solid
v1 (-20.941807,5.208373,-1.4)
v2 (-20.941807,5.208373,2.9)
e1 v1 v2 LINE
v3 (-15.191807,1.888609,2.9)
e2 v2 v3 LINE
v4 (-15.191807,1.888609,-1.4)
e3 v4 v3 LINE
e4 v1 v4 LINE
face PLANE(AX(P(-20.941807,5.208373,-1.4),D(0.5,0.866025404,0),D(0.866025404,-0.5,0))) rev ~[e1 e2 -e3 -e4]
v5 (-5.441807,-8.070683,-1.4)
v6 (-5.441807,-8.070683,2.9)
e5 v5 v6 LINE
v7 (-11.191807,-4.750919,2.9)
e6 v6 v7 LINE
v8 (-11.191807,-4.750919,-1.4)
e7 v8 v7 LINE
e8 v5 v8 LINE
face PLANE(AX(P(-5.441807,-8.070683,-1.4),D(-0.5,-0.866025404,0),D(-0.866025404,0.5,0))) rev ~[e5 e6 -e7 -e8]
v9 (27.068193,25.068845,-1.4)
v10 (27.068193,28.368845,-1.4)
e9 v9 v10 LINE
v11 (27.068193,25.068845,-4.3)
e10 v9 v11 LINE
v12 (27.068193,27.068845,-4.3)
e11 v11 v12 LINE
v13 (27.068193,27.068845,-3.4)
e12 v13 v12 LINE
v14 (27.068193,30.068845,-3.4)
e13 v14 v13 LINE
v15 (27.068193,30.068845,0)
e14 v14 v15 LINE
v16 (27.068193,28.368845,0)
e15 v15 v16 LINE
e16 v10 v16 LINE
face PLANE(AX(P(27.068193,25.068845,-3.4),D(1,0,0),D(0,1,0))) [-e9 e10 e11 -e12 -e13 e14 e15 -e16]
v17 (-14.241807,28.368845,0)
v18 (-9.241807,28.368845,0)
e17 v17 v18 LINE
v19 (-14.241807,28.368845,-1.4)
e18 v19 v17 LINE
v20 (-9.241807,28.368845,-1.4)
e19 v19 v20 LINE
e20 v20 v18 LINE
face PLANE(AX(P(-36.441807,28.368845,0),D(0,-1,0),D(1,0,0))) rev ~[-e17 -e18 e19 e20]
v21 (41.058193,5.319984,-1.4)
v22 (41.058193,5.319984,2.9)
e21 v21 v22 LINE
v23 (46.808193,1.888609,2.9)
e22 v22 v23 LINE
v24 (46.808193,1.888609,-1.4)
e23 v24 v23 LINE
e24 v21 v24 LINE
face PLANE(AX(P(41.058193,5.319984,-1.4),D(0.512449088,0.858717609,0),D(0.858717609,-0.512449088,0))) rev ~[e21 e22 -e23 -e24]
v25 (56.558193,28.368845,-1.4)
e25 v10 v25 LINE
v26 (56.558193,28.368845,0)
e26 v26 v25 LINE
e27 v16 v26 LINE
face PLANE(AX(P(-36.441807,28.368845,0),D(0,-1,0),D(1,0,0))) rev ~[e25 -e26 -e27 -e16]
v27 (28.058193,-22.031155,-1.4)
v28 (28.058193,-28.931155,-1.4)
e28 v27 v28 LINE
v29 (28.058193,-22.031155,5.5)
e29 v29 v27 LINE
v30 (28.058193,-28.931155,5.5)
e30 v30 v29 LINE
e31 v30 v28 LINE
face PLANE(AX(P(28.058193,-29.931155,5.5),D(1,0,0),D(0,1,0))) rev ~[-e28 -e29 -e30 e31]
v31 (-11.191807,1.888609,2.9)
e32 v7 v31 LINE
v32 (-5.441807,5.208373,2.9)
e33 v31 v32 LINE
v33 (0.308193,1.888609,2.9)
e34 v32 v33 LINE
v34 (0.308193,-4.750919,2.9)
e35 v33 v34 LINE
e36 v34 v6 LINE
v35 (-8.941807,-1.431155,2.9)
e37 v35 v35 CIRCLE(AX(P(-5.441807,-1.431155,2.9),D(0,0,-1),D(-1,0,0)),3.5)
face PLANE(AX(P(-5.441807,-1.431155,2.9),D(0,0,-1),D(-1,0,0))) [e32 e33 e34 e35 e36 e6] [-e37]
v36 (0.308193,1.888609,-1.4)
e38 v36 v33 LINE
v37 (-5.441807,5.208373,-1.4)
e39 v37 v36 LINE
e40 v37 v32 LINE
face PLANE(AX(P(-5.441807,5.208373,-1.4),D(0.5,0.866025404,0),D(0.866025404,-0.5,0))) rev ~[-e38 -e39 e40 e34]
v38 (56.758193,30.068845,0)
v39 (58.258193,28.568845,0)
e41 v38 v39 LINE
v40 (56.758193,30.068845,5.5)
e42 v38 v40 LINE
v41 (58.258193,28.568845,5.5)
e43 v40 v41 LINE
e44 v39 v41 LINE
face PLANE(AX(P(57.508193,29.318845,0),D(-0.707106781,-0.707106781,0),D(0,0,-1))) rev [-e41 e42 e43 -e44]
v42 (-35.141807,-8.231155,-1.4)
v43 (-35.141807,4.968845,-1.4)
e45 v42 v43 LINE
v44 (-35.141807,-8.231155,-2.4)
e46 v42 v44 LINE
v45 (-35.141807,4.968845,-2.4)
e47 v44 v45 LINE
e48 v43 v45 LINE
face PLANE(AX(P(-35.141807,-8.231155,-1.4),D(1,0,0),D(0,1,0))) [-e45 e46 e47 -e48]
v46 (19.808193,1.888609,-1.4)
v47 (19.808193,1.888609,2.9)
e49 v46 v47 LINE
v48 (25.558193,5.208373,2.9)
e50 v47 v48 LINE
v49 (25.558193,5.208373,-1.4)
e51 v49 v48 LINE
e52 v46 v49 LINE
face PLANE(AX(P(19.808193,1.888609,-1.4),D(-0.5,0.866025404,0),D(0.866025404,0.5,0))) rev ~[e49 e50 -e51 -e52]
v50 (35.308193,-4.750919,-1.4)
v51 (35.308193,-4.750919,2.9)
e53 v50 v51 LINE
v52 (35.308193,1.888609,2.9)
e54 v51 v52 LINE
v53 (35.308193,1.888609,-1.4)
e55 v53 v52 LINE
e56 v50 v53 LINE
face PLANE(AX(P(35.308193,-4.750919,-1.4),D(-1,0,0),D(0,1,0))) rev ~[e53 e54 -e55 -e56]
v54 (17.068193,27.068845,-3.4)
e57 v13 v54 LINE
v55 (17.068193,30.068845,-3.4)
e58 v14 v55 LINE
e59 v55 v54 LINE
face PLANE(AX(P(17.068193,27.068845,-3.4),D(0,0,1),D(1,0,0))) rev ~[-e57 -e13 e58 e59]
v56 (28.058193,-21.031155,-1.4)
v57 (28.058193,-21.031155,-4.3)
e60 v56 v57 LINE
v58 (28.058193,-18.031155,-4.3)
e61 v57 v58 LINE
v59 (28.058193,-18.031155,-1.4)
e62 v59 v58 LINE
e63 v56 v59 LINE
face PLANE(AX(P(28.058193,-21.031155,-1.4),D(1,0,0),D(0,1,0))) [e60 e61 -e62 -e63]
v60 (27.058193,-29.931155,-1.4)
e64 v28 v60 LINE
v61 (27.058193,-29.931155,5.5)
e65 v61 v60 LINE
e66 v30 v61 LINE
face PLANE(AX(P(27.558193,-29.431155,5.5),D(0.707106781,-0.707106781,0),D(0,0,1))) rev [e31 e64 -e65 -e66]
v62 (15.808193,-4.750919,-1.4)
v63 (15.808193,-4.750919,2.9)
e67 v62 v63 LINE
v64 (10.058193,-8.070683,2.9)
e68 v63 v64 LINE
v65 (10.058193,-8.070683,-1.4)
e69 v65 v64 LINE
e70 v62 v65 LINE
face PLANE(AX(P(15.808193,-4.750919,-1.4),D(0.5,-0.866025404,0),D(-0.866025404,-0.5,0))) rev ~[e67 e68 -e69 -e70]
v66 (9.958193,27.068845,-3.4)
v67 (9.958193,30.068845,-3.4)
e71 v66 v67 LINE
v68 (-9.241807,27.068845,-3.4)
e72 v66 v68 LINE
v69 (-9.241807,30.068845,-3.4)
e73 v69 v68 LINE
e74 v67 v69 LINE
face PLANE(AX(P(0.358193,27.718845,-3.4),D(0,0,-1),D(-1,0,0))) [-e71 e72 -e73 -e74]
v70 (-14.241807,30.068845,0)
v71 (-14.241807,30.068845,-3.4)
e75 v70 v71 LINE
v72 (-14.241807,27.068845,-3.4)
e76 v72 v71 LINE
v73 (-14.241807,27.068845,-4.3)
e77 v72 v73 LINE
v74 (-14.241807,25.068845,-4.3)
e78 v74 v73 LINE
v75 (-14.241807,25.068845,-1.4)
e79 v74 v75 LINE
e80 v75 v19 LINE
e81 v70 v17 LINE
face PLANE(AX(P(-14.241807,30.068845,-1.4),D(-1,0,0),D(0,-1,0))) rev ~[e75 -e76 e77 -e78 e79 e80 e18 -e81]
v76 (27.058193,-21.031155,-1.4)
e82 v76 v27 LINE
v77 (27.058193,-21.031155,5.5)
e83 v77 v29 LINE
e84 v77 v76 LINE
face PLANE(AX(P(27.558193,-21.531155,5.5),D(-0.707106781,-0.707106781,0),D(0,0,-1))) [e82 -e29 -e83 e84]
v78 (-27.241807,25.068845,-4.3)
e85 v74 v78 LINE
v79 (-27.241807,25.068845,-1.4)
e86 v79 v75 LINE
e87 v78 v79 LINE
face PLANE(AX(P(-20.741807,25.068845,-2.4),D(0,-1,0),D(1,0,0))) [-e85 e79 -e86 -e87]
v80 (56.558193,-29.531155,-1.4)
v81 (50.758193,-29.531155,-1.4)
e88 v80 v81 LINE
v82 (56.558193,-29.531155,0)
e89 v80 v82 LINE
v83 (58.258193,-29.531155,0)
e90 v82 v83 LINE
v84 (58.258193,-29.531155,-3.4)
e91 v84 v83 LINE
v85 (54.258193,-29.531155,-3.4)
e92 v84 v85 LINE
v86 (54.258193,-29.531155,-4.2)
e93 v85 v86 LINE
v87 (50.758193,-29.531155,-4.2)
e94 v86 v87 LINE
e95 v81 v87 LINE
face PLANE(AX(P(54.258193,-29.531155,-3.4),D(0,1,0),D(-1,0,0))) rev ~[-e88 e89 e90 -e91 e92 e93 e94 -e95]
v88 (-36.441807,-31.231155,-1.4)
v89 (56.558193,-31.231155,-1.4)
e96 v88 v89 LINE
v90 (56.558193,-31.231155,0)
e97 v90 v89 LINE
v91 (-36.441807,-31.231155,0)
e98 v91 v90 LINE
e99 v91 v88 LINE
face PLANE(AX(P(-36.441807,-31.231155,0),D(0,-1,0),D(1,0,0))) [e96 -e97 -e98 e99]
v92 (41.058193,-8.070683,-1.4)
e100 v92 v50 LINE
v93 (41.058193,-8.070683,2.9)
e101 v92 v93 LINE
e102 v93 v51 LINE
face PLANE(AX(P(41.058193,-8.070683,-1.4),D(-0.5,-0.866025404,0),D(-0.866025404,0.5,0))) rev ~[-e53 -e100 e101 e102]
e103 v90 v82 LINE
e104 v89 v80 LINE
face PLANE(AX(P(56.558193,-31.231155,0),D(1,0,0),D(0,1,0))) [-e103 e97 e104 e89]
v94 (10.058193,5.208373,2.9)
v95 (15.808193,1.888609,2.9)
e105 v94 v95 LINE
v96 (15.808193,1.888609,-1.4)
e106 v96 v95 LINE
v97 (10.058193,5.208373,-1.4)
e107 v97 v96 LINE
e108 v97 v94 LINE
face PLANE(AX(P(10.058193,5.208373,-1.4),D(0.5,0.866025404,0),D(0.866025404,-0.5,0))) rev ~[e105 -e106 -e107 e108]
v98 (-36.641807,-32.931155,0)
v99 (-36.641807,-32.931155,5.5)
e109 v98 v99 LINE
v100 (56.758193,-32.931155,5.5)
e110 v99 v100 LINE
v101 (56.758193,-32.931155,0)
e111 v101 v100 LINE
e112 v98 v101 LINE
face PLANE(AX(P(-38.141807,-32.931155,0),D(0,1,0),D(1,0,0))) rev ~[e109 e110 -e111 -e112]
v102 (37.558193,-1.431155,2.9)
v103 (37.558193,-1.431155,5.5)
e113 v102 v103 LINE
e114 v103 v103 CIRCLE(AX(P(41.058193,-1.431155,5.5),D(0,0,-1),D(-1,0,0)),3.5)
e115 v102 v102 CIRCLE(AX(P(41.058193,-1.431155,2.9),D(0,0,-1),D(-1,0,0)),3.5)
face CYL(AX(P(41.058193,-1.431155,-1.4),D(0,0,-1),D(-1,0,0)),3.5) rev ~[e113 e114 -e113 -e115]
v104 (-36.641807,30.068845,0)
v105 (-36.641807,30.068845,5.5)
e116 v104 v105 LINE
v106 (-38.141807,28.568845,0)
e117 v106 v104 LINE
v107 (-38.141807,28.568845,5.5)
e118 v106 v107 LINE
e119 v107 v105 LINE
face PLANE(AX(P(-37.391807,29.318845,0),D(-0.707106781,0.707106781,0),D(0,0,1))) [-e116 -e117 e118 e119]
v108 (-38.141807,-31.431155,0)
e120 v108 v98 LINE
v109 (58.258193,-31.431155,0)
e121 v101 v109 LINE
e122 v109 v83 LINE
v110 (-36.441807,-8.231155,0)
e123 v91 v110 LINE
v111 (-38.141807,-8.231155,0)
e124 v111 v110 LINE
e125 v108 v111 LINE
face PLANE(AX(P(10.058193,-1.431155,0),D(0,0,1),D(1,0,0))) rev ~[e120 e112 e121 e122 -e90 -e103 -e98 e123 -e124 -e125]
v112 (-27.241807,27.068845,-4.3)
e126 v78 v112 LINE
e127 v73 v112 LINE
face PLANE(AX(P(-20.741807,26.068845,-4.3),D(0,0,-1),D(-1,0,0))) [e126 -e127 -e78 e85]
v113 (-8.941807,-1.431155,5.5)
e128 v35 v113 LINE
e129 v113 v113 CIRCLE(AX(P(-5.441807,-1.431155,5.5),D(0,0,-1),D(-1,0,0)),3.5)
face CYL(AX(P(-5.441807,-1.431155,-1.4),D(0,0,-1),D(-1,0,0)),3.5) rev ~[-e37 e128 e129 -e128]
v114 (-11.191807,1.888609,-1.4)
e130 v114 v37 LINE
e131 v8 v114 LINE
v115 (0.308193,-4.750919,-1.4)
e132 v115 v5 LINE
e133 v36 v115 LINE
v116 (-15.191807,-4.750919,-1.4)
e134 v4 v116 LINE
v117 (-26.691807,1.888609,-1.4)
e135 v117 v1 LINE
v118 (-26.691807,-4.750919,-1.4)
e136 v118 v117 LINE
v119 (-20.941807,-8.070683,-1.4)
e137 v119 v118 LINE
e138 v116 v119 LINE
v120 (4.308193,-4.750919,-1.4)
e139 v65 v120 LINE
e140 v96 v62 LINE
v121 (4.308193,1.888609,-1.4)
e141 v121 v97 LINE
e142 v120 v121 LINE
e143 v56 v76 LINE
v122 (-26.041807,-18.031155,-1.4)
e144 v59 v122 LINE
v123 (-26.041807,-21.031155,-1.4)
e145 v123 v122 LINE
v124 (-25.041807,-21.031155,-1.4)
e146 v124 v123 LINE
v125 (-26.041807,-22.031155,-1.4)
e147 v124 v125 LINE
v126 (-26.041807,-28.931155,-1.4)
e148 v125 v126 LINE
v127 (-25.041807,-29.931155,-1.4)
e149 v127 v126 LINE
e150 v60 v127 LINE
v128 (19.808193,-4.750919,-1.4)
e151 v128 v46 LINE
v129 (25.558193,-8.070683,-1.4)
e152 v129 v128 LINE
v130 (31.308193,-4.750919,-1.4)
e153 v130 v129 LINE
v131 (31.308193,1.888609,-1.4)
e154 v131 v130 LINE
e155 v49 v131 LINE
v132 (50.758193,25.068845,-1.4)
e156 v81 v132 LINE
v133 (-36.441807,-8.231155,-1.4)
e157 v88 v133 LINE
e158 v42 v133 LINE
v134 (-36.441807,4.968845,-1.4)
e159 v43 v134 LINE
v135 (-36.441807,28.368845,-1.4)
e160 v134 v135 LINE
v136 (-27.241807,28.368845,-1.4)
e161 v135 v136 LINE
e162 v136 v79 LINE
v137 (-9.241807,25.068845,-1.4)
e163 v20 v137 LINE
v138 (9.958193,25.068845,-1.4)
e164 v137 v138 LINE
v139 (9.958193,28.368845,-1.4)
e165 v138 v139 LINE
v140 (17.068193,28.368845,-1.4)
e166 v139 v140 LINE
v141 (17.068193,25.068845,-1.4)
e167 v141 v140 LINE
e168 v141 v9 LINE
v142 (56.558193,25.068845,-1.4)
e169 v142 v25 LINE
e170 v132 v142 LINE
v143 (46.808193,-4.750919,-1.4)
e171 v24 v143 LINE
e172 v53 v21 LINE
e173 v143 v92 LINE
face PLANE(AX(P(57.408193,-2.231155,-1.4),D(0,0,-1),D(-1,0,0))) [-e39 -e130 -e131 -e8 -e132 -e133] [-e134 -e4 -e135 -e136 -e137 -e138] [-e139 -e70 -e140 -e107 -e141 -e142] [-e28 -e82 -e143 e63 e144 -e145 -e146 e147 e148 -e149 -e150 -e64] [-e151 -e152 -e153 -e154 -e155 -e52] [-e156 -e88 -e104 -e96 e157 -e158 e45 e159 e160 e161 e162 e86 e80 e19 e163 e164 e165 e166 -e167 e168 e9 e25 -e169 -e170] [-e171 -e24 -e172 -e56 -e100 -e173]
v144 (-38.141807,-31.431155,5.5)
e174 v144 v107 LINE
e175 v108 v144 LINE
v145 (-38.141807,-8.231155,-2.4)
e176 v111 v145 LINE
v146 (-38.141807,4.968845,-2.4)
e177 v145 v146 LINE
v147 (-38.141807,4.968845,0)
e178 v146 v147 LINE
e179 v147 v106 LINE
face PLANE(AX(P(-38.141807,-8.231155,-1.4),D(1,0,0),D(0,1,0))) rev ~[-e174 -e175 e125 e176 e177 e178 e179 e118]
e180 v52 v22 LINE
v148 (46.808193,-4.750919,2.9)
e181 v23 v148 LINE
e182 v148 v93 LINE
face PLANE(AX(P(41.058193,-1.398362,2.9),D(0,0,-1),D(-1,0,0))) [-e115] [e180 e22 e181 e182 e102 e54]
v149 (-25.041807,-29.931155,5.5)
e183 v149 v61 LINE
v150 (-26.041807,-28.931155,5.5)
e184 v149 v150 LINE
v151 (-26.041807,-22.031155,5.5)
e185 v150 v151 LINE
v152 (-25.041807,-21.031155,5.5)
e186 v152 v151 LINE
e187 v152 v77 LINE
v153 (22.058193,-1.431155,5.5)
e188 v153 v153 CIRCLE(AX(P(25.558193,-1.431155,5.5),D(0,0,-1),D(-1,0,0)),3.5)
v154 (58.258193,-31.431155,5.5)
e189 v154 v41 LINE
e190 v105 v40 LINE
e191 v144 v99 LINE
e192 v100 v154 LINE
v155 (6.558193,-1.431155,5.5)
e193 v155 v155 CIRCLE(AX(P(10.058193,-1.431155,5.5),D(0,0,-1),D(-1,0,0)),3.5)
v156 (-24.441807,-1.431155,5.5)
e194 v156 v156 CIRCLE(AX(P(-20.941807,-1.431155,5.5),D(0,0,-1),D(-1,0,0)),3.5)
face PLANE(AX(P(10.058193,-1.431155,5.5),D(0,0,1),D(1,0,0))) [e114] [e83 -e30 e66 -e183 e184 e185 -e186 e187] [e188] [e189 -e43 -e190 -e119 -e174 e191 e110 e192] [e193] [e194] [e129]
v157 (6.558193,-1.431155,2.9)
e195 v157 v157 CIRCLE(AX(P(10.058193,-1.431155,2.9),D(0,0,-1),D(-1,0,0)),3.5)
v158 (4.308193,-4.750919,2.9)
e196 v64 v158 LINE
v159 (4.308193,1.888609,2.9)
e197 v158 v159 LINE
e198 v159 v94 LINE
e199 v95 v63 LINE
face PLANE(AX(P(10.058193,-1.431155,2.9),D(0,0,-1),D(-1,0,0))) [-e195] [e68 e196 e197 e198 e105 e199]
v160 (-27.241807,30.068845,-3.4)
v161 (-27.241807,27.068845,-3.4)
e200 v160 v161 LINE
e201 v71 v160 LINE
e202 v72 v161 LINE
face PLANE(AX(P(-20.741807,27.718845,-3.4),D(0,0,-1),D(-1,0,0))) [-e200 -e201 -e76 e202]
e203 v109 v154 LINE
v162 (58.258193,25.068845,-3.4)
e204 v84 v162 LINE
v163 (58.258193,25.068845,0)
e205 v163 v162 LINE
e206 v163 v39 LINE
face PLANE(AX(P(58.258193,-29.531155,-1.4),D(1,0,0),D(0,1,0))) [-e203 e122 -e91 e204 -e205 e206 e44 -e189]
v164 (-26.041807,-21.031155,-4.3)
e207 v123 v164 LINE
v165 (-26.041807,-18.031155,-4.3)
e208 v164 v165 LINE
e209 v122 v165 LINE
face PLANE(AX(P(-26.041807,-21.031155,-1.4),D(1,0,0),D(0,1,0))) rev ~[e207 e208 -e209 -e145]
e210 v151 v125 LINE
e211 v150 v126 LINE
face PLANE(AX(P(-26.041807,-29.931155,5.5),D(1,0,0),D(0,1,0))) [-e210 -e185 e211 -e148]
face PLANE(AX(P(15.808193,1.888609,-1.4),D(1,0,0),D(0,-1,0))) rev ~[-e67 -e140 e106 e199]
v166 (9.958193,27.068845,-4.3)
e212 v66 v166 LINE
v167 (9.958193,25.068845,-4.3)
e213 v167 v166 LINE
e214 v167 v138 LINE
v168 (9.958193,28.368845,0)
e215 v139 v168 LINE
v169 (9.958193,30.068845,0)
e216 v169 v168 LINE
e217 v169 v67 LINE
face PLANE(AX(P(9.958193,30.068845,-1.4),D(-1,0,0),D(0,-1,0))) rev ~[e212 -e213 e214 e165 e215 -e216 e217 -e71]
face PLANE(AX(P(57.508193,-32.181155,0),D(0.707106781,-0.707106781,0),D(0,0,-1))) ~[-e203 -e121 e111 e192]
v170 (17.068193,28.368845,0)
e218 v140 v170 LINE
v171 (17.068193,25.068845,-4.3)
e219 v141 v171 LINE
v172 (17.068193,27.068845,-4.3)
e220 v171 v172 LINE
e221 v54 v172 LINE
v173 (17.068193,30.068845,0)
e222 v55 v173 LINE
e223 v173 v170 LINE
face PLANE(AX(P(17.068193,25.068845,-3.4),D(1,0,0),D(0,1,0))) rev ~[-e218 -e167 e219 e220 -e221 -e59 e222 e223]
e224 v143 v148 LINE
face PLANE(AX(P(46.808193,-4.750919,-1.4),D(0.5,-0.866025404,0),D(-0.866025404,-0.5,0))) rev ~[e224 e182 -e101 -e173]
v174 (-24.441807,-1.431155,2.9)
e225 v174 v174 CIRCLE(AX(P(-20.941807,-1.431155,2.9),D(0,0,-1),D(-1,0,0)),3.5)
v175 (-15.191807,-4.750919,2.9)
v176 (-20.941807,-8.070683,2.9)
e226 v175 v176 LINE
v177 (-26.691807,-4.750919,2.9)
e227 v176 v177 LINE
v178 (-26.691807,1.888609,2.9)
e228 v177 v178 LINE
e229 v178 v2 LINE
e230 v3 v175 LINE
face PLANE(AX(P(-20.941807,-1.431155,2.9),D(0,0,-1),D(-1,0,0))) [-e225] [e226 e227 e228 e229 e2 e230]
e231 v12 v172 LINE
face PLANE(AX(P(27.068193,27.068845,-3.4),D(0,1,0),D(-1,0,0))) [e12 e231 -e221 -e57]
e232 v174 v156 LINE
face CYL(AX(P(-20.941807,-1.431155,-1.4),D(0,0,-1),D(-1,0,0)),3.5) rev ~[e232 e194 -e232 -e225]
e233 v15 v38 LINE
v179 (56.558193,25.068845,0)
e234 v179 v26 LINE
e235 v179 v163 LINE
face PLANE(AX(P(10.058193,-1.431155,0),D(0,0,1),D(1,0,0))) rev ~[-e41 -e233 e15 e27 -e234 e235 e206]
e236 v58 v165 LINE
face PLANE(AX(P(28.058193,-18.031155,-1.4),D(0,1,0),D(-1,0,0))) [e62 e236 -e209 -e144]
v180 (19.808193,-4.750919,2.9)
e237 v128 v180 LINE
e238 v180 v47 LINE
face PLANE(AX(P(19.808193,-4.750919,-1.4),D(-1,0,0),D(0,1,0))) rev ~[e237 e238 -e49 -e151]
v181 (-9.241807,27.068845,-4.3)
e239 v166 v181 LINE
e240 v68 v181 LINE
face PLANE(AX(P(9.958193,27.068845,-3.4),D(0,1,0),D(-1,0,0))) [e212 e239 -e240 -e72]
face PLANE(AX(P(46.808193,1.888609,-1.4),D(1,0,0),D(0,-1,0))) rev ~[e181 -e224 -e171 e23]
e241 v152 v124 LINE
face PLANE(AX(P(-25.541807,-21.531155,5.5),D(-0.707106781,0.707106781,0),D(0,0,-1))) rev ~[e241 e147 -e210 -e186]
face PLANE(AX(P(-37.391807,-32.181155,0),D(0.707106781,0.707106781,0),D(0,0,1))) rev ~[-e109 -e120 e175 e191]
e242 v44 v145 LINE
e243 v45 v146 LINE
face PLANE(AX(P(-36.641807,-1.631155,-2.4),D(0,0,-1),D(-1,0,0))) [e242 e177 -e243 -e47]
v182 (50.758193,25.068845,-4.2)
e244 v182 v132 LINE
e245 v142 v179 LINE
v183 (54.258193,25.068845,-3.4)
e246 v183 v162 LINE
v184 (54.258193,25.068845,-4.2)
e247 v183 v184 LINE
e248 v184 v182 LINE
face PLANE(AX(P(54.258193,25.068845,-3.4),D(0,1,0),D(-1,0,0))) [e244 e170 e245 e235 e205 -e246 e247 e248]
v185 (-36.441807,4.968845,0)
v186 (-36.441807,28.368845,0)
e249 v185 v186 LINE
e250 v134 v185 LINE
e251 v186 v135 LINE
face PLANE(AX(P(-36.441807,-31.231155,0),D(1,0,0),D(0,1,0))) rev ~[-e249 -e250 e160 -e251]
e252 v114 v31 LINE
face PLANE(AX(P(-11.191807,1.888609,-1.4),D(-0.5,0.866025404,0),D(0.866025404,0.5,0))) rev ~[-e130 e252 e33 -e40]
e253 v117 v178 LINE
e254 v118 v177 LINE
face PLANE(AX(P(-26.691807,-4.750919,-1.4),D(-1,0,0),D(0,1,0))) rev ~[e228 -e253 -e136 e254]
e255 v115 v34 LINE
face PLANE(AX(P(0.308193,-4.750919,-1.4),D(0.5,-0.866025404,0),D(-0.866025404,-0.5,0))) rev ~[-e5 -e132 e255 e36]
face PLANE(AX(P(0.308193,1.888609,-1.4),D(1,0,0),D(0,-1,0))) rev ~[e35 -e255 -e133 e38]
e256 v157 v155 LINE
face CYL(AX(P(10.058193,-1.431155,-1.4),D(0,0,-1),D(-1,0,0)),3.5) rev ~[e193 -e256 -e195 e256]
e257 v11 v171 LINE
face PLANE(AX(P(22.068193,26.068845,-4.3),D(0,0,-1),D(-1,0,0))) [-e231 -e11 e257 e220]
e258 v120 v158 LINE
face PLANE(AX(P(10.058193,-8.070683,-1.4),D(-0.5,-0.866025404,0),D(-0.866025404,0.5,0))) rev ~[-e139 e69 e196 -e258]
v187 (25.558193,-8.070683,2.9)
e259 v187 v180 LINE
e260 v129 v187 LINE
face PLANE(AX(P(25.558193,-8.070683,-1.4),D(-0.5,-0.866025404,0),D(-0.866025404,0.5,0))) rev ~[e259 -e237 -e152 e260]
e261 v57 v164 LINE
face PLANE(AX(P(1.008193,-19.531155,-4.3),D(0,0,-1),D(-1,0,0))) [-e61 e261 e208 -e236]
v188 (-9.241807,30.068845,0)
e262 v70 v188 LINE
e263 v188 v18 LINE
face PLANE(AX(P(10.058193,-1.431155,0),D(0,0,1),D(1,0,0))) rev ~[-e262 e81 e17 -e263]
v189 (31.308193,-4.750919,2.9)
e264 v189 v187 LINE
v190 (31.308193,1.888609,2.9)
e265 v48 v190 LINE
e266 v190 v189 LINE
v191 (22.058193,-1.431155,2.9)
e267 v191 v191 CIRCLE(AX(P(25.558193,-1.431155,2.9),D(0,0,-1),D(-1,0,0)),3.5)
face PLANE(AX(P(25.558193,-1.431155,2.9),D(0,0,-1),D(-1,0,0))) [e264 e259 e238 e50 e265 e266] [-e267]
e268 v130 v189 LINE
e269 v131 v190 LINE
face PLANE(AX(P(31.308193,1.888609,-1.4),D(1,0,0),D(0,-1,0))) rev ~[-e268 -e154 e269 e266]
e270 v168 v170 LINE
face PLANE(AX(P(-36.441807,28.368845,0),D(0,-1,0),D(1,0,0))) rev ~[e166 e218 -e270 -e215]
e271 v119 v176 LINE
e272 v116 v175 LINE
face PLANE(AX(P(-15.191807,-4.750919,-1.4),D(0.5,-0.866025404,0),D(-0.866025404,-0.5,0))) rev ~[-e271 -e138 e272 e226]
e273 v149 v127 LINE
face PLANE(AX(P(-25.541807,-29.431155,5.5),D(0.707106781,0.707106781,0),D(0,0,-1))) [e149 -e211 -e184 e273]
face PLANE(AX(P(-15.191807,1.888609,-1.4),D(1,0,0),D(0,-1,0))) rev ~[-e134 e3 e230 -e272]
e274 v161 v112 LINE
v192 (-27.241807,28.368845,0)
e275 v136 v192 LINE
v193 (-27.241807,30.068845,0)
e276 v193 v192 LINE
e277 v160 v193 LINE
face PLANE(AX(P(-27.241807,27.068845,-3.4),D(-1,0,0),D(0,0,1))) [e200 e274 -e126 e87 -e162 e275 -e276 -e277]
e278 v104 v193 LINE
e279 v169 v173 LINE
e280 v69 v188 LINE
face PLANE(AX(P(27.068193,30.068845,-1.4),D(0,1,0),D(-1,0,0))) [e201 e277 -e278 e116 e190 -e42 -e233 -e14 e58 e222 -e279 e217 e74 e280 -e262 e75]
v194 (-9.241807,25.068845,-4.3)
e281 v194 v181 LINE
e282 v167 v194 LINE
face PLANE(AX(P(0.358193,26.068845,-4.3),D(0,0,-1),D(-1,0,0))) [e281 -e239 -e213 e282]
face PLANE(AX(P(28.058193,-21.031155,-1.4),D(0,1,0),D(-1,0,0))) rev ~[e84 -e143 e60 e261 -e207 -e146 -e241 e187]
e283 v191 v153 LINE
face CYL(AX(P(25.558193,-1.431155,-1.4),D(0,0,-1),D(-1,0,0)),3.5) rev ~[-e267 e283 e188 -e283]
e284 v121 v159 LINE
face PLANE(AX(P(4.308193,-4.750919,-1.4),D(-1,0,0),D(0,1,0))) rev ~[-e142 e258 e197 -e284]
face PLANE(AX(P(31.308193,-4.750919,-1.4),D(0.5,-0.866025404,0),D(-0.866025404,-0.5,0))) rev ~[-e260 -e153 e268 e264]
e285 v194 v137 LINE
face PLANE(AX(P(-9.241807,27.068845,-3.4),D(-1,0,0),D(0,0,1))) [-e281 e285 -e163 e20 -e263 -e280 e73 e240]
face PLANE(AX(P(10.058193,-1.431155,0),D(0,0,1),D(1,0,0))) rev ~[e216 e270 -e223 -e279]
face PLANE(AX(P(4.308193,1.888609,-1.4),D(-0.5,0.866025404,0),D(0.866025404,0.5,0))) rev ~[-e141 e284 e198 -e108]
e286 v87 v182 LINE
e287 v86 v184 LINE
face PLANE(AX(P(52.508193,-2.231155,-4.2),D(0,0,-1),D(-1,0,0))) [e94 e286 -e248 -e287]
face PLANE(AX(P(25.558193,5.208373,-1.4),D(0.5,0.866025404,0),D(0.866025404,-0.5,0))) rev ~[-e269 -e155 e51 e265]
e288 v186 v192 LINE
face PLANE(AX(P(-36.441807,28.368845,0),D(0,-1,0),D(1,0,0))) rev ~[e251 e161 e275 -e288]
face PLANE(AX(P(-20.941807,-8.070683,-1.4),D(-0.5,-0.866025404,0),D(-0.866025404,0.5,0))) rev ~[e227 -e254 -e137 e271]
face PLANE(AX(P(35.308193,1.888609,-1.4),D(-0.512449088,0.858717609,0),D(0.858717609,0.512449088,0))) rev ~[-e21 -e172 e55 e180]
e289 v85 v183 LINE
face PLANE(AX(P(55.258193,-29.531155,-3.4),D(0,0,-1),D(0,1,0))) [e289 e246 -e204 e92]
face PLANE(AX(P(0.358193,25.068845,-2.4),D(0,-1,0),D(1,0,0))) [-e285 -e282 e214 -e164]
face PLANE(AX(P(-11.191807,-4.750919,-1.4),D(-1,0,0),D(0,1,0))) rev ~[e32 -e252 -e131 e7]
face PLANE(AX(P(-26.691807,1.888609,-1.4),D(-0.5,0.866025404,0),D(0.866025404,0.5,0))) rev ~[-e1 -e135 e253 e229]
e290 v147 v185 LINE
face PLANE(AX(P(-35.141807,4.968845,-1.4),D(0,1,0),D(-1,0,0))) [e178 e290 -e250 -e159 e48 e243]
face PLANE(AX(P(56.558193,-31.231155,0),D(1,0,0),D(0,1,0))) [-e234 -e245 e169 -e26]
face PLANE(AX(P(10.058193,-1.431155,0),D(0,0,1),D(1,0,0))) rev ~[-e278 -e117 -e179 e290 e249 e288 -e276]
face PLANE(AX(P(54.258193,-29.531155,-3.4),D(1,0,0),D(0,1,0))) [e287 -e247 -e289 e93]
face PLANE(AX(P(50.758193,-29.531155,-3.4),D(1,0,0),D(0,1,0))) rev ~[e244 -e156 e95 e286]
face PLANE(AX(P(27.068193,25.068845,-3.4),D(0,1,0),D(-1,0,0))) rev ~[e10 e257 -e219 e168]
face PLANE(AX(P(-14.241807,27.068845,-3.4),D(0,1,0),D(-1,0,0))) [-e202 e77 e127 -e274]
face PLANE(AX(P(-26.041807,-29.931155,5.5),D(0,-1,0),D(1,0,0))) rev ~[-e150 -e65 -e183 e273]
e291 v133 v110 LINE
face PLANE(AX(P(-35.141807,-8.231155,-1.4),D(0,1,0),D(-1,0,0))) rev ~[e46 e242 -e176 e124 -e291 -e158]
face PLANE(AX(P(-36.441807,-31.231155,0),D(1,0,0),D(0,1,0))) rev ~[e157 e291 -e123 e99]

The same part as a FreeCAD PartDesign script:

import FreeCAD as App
import Part
import Sketcher

V = App.Vector
Q = App.Units.Quantity


def edges_at(feature, points):
    """Names of the edges that pass closest to the given points."""
    edges = feature.Shape.Edges
    near = lambda p: min(range(len(edges)), key=lambda i: edges[i].distToShape(Part.Vertex(*p))[0])
    return sorted({f"Edge{near(p) + 1}" for p in points})


def add_polygon(sketch, points):
    """Adds a closed chain of lines whose ends are joined by coincident constraints."""
    first, n = sketch.GeometryCount, len(points)
    for a, b in zip(points, points[1:] + points[:1]):
        sketch.addGeometry(Part.LineSegment(App.Vector(*a, 0), App.Vector(*b, 0)), False)
    for i in range(n):
        sketch.addConstraint(Sketcher.Constraint("Coincident", first + i, 2, first + (i + 1) % n, 1))

doc = App.newDocument("Part")
params = doc.addObject("Spreadsheet::Sheet", "Params")
for row, (alias, value) in enumerate([
    ("sketch1_height", "63 mm"),
    ("sketch1_width", "96.4 mm"),
    ("pad1_length", "5.5 mm"),
    ("sketch2_width", "93 mm"),
    ("sketch2_height", "59.6 mm"),
    ("pad2_length", "1.4 mm"),
    ("chamfer_size", "1.5 mm"),
    ("sketch3_width", "1.7 mm"),
    ("sketch3_height", "13.2 mm"),
    ("pad3_length", "1.7 mm"),
    ("sketch4_width", "10 mm"),
    ("sketch4_width2", "13 mm"),
    ("sketch4_width3", "19.2 mm"),
    ("sketch4_height", "1.7 mm"),
    ("pad4_length", "1.6 mm"),
    ("sketch5_width", "10 mm"),
    ("sketch5_width2", "13 mm"),
    ("sketch5_height", "3 mm"),
    ("sketch5_width3", "19.2 mm"),
    ("pad5_length", "2 mm"),
    ("sketch6_width", "3 mm"),
    ("sketch6_height", "13.2 mm"),
    ("pad6_length", "1 mm"),
    ("sketch7_width", "1.7 mm"),
    ("sketch7_height", "54.6 mm"),
    ("pad7_length", "1.6 mm"),
    ("sketch8_width", "3 mm"),
    ("sketch8_height", "54.6 mm"),
    ("pad8_length", "2 mm"),
    ("sketch9_width", "54.1 mm"),
    ("sketch9_height", "8.9 mm"),
    ("pocket1_length", "12 mm"),
    ("chamfer2_size", "1 mm"),
    ("sketch10_width", "10 mm"),
    ("sketch10_width2", "13 mm"),
    ("sketch10_height", "2 mm"),
    ("sketch10_width3", "19.2 mm"),
    ("pad9_length", "2 mm"),
    ("sketch11_width", "10 mm"),
    ("sketch11_width2", "13 mm"),
    ("sketch11_height", "2 mm"),
    ("sketch11_width3", "19.2 mm"),
    ("pad10_length", "0.9 mm"),
    ("sketch12_height", "3 mm"),
    ("sketch12_width", "54.1 mm"),
    ("pad11_length", "2.9 mm"),
    ("sketch13_height", "2 mm"),
    ("sketch13_width", "54.6 mm"),
    ("pad12_length", "4.5 mm"),
    ("sketch14_width", "3.5 mm"),
    ("sketch14_height", "54.6 mm"),
    ("pad13_length", "0.8 mm"),
    ("sketch15_diameter", "7 mm"),
    ("pocket2_length", "12 mm"),
    ("pocket3_length", "4.3 mm"),
], start=1):
    params.set(f"A{row}", alias)
    params.set(f"B{row}", "=" + value)
    params.setAlias(f"B{row}", alias)

body = doc.addObject("PartDesign::Body", "Body")

sketch1 = body.newObject("Sketcher::SketchObject", "Sketch")
sketch1.AttachmentSupport = (doc.getObject("XY_Plane"), [""])
sketch1.MapMode = "FlatFace"
add_polygon(sketch1, [(-38, 30), (-38, -33), (58, -33), (58, 30)])
sketch1.addConstraint([
    Sketcher.Constraint("Vertical", 0),
    Sketcher.Constraint("Horizontal", 1),
    Sketcher.Constraint("Vertical", 2),
    Sketcher.Constraint("Horizontal", 3),
    Sketcher.Constraint("DistanceY", 0, 2, 0, 1, Q("63 mm")),
    Sketcher.Constraint("DistanceX", 1, 1, 1, 2, Q("96.4 mm")),
    Sketcher.Constraint("DistanceX", 0, 2, -1, 1, Q("38.141807 mm")),
    Sketcher.Constraint("DistanceY", 0, 2, -1, 1, Q("32.931155 mm")),
])
sketch1.setExpression("Constraints[8]", "Params.sketch1_height")
sketch1.setExpression("Constraints[9]", "Params.sketch1_width")
pad1 = body.newObject("PartDesign::Pad", "Pad")
pad1.Profile = sketch1
pad1.setExpression("Length", "Params.pad1_length")

sketch2 = body.newObject("Sketcher::SketchObject", "Sketch001")
sketch2.AttachmentSupport = (doc.getObject("XY_Plane"), [""])
sketch2.MapMode = "FlatFace"
add_polygon(sketch2, [(-36, 28), (-36, -31), (57, -31), (57, 28)])
sketch2.addConstraint([
    Sketcher.Constraint("Vertical", 0),
    Sketcher.Constraint("Horizontal", 1),
    Sketcher.Constraint("Vertical", 2),
    Sketcher.Constraint("Horizontal", 3),
    Sketcher.Constraint("DistanceX", 1, 1, 1, 2, Q("93 mm")),
    Sketcher.Constraint("DistanceY", 0, 2, 0, 1, Q("59.6 mm")),
    Sketcher.Constraint("DistanceX", 0, 2, -1, 1, Q("36.441807 mm")),
    Sketcher.Constraint("DistanceY", 0, 2, -1, 1, Q("31.231155 mm")),
])
sketch2.setExpression("Constraints[8]", "Params.sketch2_width")
sketch2.setExpression("Constraints[9]", "Params.sketch2_height")
pad2 = body.newObject("PartDesign::Pad", "Pad001")
pad2.Profile = sketch2
pad2.setExpression("Length", "Params.pad2_length")
pad2.Reversed = True
doc.recompute()

chamfer = body.newObject("PartDesign::Chamfer", "Chamfer")
chamfer.Base = (pad2, edges_at(pad2, [
    (-38.142, 30.069, 2.75),
    (58.258, 30.069, 2.75),
    (58.258, -32.931, 2.75),
    (-38.142, -32.931, 2.75),
]))
chamfer.setExpression("Size", "Params.chamfer_size")

sketch3 = body.newObject("Sketcher::SketchObject", "Sketch002")
sketch3.AttachmentSupport = (doc.getObject("XY_Plane"), [""])
sketch3.MapMode = "FlatFace"
sketch3.AttachmentOffset = App.Placement(V(0, 0, -1.4), App.Rotation())
add_polygon(sketch3, [(-36.4, 5), (-36.4, -8.2), (-38.1, -8.2), (-38.1, 5)])
sketch3.addConstraint([
    Sketcher.Constraint("Vertical", 0),
    Sketcher.Constraint("Horizontal", 1),
    Sketcher.Constraint("Vertical", 2),
    Sketcher.Constraint("Horizontal", 3),
    Sketcher.Constraint("DistanceX", 1, 2, 1, 1, Q("1.7 mm")),
    Sketcher.Constraint("DistanceY", 0, 2, 0, 1, Q("13.2 mm")),
    Sketcher.Constraint("DistanceX", 0, 2, -1, 1, Q("36.441807 mm")),
    Sketcher.Constraint("DistanceY", 0, 2, -1, 1, Q("8.231155 mm")),
])
sketch3.setExpression("Constraints[8]", "Params.sketch3_width")
sketch3.setExpression("Constraints[9]", "Params.sketch3_height")
pad3 = body.newObject("PartDesign::Pad", "Pad002")
pad3.Profile = sketch3
pad3.setExpression("Length", "Params.pad3_length")

sketch4 = body.newObject("Sketcher::SketchObject", "Sketch003")
sketch4.AttachmentSupport = (doc.getObject("XY_Plane"), [""])
sketch4.MapMode = "FlatFace"
sketch4.AttachmentOffset = App.Placement(V(0, 0, -1.4), App.Rotation())
add_polygon(sketch4, [(27.1, 30.1), (27.1, 28.4), (17.1, 28.4), (17.1, 30.1)])
add_polygon(sketch4, [(10, 30.1), (10, 28.4), (-9.2, 28.4), (-9.2, 30.1)])
add_polygon(sketch4, [(-14.2, 30.1), (-14.2, 28.4), (-27.2, 28.4), (-27.2, 30.1)])
sketch4.addConstraint([
    Sketcher.Constraint("Vertical", 0),
    Sketcher.Constraint("Horizontal", 1),
    Sketcher.Constraint("Vertical", 2),
    Sketcher.Constraint("Horizontal", 3),
    Sketcher.Constraint("Vertical", 4),
    Sketcher.Constraint("Horizontal", 5),
    Sketcher.Constraint("Vertical", 6),
    Sketcher.Constraint("Horizontal", 7),
    Sketcher.Constraint("Vertical", 8),
    Sketcher.Constraint("Horizontal", 9),
    Sketcher.Constraint("Vertical", 10),
    Sketcher.Constraint("Horizontal", 11),
    Sketcher.Constraint("Horizontal", 1, 2, 4, 2),
    Sketcher.Constraint("Horizontal", 3, 2, 6, 2),
    Sketcher.Constraint("Horizontal", 5, 2, 8, 2),
    Sketcher.Constraint("Horizontal", 7, 2, 10, 2),
    Sketcher.Constraint("DistanceX", 1, 2, 1, 1, Q("10 mm")),
    Sketcher.Constraint("DistanceX", 9, 2, 9, 1, Q("13 mm")),
    Sketcher.Constraint("DistanceX", 5, 2, 5, 1, Q("19.2 mm")),
    Sketcher.Constraint("DistanceY", 0, 2, 0, 1, Q("1.7 mm")),
    Sketcher.Constraint("DistanceX", 8, 2, 5, 2, Q("5 mm")),
    Sketcher.Constraint("DistanceX", 4, 2, 1, 2, Q("7.11 mm")),
    Sketcher.Constraint("DistanceX", -1, 1, 0, 2, Q("27.068193 mm")),
    Sketcher.Constraint("DistanceY", -1, 1, 0, 2, Q("28.368845 mm")),
])
sketch4.setExpression("Constraints[28]", "Params.sketch4_width")
sketch4.setExpression("Constraints[29]", "Params.sketch4_width2")
sketch4.setExpression("Constraints[30]", "Params.sketch4_width3")
sketch4.setExpression("Constraints[31]", "Params.sketch4_height")
pad4 = body.newObject("PartDesign::Pad", "Pad003")
pad4.Profile = sketch4
pad4.setExpression("Length", "Params.pad4_length")

sketch5 = body.newObject("Sketcher::SketchObject", "Sketch004")
sketch5.AttachmentSupport = (doc.getObject("XY_Plane"), [""])
sketch5.MapMode = "FlatFace"
sketch5.AttachmentOffset = App.Placement(V(0, 0, -1.4), App.Rotation())
add_polygon(sketch5, [(27.1, 30.1), (27.1, 27.1), (17.1, 27.1), (17.1, 30.1)])
add_polygon(sketch5, [(10, 27.1), (-9.2, 27.1), (-9.2, 30.1), (10, 30.1)])
add_polygon(sketch5, [(-14.2, 27.1), (-27.2, 27.1), (-27.2, 30.1), (-14.2, 30.1)])
sketch5.addConstraint([
    Sketcher.Constraint("Vertical", 0),
    Sketcher.Constraint("Horizontal", 1),
    Sketcher.Constraint("Vertical", 2),
    Sketcher.Constraint("Horizontal", 3),
    Sketcher.Constraint("Horizontal", 4),
    Sketcher.Constraint("Vertical", 5),
    Sketcher.Constraint("Horizontal", 6),
    Sketcher.Constraint("Vertical", 7),
    Sketcher.Constraint("Horizontal", 8),
    Sketcher.Constraint("Vertical", 9),
    Sketcher.Constraint("Horizontal", 10),
    Sketcher.Constraint("Vertical", 11),
    Sketcher.Constraint("Horizontal", 1, 2, 4, 2),
    Sketcher.Constraint("Horizontal", 3, 2, 5, 2),
    Sketcher.Constraint("Horizontal", 7, 2, 8, 2),
    Sketcher.Constraint("Horizontal", 6, 2, 9, 2),
    Sketcher.Constraint("DistanceX", 1, 2, 1, 1, Q("10 mm")),
    Sketcher.Constraint("DistanceX", 8, 2, 8, 1, Q("13 mm")),
    Sketcher.Constraint("DistanceY", 0, 2, 0, 1, Q("3 mm")),
    Sketcher.Constraint("DistanceX", 4, 2, 4, 1, Q("19.2 mm")),
    Sketcher.Constraint("DistanceX", 8, 2, 4, 2, Q("18 mm")),
    Sketcher.Constraint("DistanceX", 4, 2, 1, 2, Q("26.31 mm")),
    Sketcher.Constraint("DistanceX", -1, 1, 0, 2, Q("27.068193 mm")),
    Sketcher.Constraint("DistanceY", -1, 1, 0, 2, Q("27.068845 mm")),
])
sketch5.setExpression("Constraints[28]", "Params.sketch5_width")
sketch5.setExpression("Constraints[29]", "Params.sketch5_width2")
sketch5.setExpression("Constraints[30]", "Params.sketch5_height")
sketch5.setExpression("Constraints[31]", "Params.sketch5_width3")
pad5 = body.newObject("PartDesign::Pad", "Pad004")
pad5.Profile = sketch5
pad5.setExpression("Length", "Params.pad5_length")
pad5.Reversed = True

sketch6 = body.newObject("Sketcher::SketchObject", "Sketch005")
sketch6.AttachmentSupport = (doc.getObject("XY_Plane"), [""])
sketch6.MapMode = "FlatFace"
sketch6.AttachmentOffset = App.Placement(V(0, 0, -1.4), App.Rotation())
add_polygon(sketch6, [(-35.1, 5), (-35.1, -8.2), (-38.1, -8.2), (-38.1, 5)])
sketch6.addConstraint([
    Sketcher.Constraint("Vertical", 0),
    Sketcher.Constraint("Horizontal", 1),
    Sketcher.Constraint("Vertical", 2),
    Sketcher.Constraint("Horizontal", 3),
    Sketcher.Constraint("DistanceX", 1, 2, 1, 1, Q("3 mm")),
    Sketcher.Constraint("DistanceY", 0, 2, 0, 1, Q("13.2 mm")),
    Sketcher.Constraint("DistanceX", 0, 2, -1, 1, Q("35.141807 mm")),
    Sketcher.Constraint("DistanceY", 0, 2, -1, 1, Q("8.231155 mm")),
])
sketch6.setExpression("Constraints[8]", "Params.sketch6_width")
sketch6.setExpression("Constraints[9]", "Params.sketch6_height")
pad6 = body.newObject("PartDesign::Pad", "Pad005")
pad6.Profile = sketch6
pad6.setExpression("Length", "Params.pad6_length")
pad6.Reversed = True

sketch7 = body.newObject("Sketcher::SketchObject", "Sketch006")
sketch7.AttachmentSupport = (doc.getObject("XY_Plane"), [""])
sketch7.MapMode = "FlatFace"
sketch7.AttachmentOffset = App.Placement(V(0, 0, -1.4), App.Rotation())
add_polygon(sketch7, [(58.3, 25.1), (58.3, -29.5), (56.6, -29.5), (56.6, 25.1)])
sketch7.addConstraint([
    Sketcher.Constraint("Vertical", 0),
    Sketcher.Constraint("Horizontal", 1),
    Sketcher.Constraint("Vertical", 2),
    Sketcher.Constraint("Horizontal", 3),
    Sketcher.Constraint("DistanceX", 1, 2, 1, 1, Q("1.7 mm")),
    Sketcher.Constraint("DistanceY", 0, 2, 0, 1, Q("54.6 mm")),
    Sketcher.Constraint("DistanceX", -1, 1, 0, 2, Q("58.258193 mm")),
    Sketcher.Constraint("DistanceY", 0, 2, -1, 1, Q("29.531155 mm")),
])
sketch7.setExpression("Constraints[8]", "Params.sketch7_width")
sketch7.setExpression("Constraints[9]", "Params.sketch7_height")
pad7 = body.newObject("PartDesign::Pad", "Pad006")
pad7.Profile = sketch7
pad7.setExpression("Length", "Params.pad7_length")

sketch8 = body.newObject("Sketcher::SketchObject", "Sketch007")
sketch8.AttachmentSupport = (doc.getObject("XY_Plane"), [""])
sketch8.MapMode = "FlatFace"
sketch8.AttachmentOffset = App.Placement(V(0, 0, -1.4), App.Rotation())
add_polygon(sketch8, [(55.3, -29.5), (55.3, 25.1), (58.3, 25.1), (58.3, -29.5)])
sketch8.addConstraint([
    Sketcher.Constraint("Vertical", 0),
    Sketcher.Constraint("Horizontal", 1),
    Sketcher.Constraint("Vertical", 2),
    Sketcher.Constraint("Horizontal", 3),
    Sketcher.Constraint("DistanceX", 1, 1, 1, 2, Q("3 mm")),
    Sketcher.Constraint("DistanceY", 0, 1, 0, 2, Q("54.6 mm")),
    Sketcher.Constraint("DistanceX", -1, 1, 0, 2, Q("55.258193 mm")),
    Sketcher.Constraint("DistanceY", -1, 1, 0, 2, Q("25.068845 mm")),
])
sketch8.setExpression("Constraints[8]", "Params.sketch8_width")
sketch8.setExpression("Constraints[9]", "Params.sketch8_height")
pad8 = body.newObject("PartDesign::Pad", "Pad007")
pad8.Profile = sketch8
pad8.setExpression("Length", "Params.pad8_length")
pad8.Reversed = True

sketch9 = body.newObject("Sketcher::SketchObject", "Sketch008")
sketch9.AttachmentSupport = (doc.getObject("XY_Plane"), [""])
sketch9.MapMode = "FlatFace"
sketch9.AttachmentOffset = App.Placement(V(0, 0, 5.5), App.Rotation())
add_polygon(sketch9, [(-26, -21), (-26, -30), (28, -30), (28, -21)])
sketch9.addConstraint([
    Sketcher.Constraint("Vertical", 0),
    Sketcher.Constraint("Horizontal", 1),
    Sketcher.Constraint("Vertical", 2),
    Sketcher.Constraint("Horizontal", 3),
    Sketcher.Constraint("DistanceX", 1, 1, 1, 2, Q("54.1 mm")),
    Sketcher.Constraint("DistanceY", 0, 2, 0, 1, Q("8.9 mm")),
    Sketcher.Constraint("DistanceX", 0, 2, -1, 1, Q("26.041807 mm")),
    Sketcher.Constraint("DistanceY", 0, 2, -1, 1, Q("29.931155 mm")),
])
sketch9.setExpression("Constraints[8]", "Params.sketch9_width")
sketch9.setExpression("Constraints[9]", "Params.sketch9_height")
pocket1 = body.newObject("PartDesign::Pocket", "Pocket")
pocket1.Profile = sketch9
pocket1.setExpression("Length", "Params.pocket1_length")
doc.recompute()

chamfer2 = body.newObject("PartDesign::Chamfer", "Chamfer001")
chamfer2.Base = (pocket1, edges_at(pocket1, [
    (28.058, -29.931, 2.05),
    (-26.042, -29.931, 2.05),
    (-26.042, -21.031, 2.05),
    (28.058, -21.031, 2.05),
]))
chamfer2.setExpression("Size", "Params.chamfer2_size")

sketch10 = body.newObject("Sketcher::SketchObject", "Sketch009")
sketch10.AttachmentSupport = (doc.getObject("XZ_Plane"), [""])
sketch10.MapMode = "FlatFace"
sketch10.AttachmentOffset = App.Placement(V(0, 0, -27.068845), App.Rotation())
add_polygon(sketch10, [(17.1, -1.4), (17.1, -3.4), (27.1, -3.4), (27.1, -1.4)])
add_polygon(sketch10, [(-9.2, -1.4), (-9.2, -3.4), (10, -3.4), (10, -1.4)])
add_polygon(sketch10, [(-27.2, -1.4), (-27.2, -3.4), (-14.2, -3.4), (-14.2, -1.4)])
sketch10.addConstraint([
    Sketcher.Constraint("Vertical", 0),
    Sketcher.Constraint("Horizontal", 1),
    Sketcher.Constraint("Vertical", 2),
    Sketcher.Constraint("Horizontal", 3),
    Sketcher.Constraint("Vertical", 4),
    Sketcher.Constraint("Horizontal", 5),
    Sketcher.Constraint("Vertical", 6),
    Sketcher.Constraint("Horizontal", 7),
    Sketcher.Constraint("Vertical", 8),
    Sketcher.Constraint("Horizontal", 9),
    Sketcher.Constraint("Vertical", 10),
    Sketcher.Constraint("Horizontal", 11),
    Sketcher.Constraint("Horizontal", 1, 2, 4, 2),
    Sketcher.Constraint("Horizontal", 3, 2, 6, 2),
    Sketcher.Constraint("Horizontal", 5, 2, 8, 2),
    Sketcher.Constraint("Horizontal", 7, 2, 10, 2),
    Sketcher.Constraint("DistanceX", 1, 1, 1, 2, Q("10 mm")),
    Sketcher.Constraint("DistanceX", 9, 1, 9, 2, Q("13 mm")),
    Sketcher.Constraint("DistanceY", 0, 2, 0, 1, Q("2 mm")),
    Sketcher.Constraint("DistanceX", 5, 1, 5, 2, Q("19.2 mm")),
    Sketcher.Constraint("DistanceX", 8, 2, 4, 2, Q("18 mm")),
    Sketcher.Constraint("DistanceY", 0, 2, -1, 1, Q("3.4 mm")),
    Sketcher.Constraint("DistanceX", 4, 2, 0, 2, Q("26.31 mm")),
    Sketcher.Constraint("DistanceX", -1, 1, 0, 2, Q("17.068193 mm")),
])
sketch10.setExpression("Constraints[28]", "Params.sketch10_width")
sketch10.setExpression("Constraints[29]", "Params.sketch10_width2")
sketch10.setExpression("Constraints[30]", "Params.sketch10_height")
sketch10.setExpression("Constraints[31]", "Params.sketch10_width3")
pad9 = body.newObject("PartDesign::Pad", "Pad008")
pad9.Profile = sketch10
pad9.setExpression("Length", "Params.pad9_length")

sketch11 = body.newObject("Sketcher::SketchObject", "Sketch010")
sketch11.AttachmentSupport = (doc.getObject("XY_Plane"), [""])
sketch11.MapMode = "FlatFace"
sketch11.AttachmentOffset = App.Placement(V(0, 0, -3.4), App.Rotation())
add_polygon(sketch11, [(27.1, 27.1), (27.1, 25.1), (17.1, 25.1), (17.1, 27.1)])
add_polygon(sketch11, [(10, 27.1), (10, 25.1), (-9.2, 25.1), (-9.2, 27.1)])
add_polygon(sketch11, [(-14.2, 27.1), (-14.2, 25.1), (-27.2, 25.1), (-27.2, 27.1)])
sketch11.addConstraint([
    Sketcher.Constraint("Vertical", 0),
    Sketcher.Constraint("Horizontal", 1),
    Sketcher.Constraint("Vertical", 2),
    Sketcher.Constraint("Horizontal", 3),
    Sketcher.Constraint("Vertical", 4),
    Sketcher.Constraint("Horizontal", 5),
    Sketcher.Constraint("Vertical", 6),
    Sketcher.Constraint("Horizontal", 7),
    Sketcher.Constraint("Vertical", 8),
    Sketcher.Constraint("Horizontal", 9),
    Sketcher.Constraint("Vertical", 10),
    Sketcher.Constraint("Horizontal", 11),
    Sketcher.Constraint("Horizontal", 1, 2, 4, 2),
    Sketcher.Constraint("Horizontal", 3, 2, 6, 2),
    Sketcher.Constraint("Horizontal", 5, 2, 8, 2),
    Sketcher.Constraint("Horizontal", 7, 2, 10, 2),
    Sketcher.Constraint("DistanceX", 1, 2, 1, 1, Q("10 mm")),
    Sketcher.Constraint("DistanceX", 9, 2, 9, 1, Q("13 mm")),
    Sketcher.Constraint("DistanceY", 0, 2, 0, 1, Q("2 mm")),
    Sketcher.Constraint("DistanceX", 5, 2, 5, 1, Q("19.2 mm")),
    Sketcher.Constraint("DistanceX", 8, 2, 5, 2, Q("5 mm")),
    Sketcher.Constraint("DistanceX", 4, 2, 1, 2, Q("7.11 mm")),
    Sketcher.Constraint("DistanceX", -1, 1, 0, 2, Q("27.068193 mm")),
    Sketcher.Constraint("DistanceY", -1, 1, 0, 2, Q("25.068845 mm")),
])
sketch11.setExpression("Constraints[28]", "Params.sketch11_width")
sketch11.setExpression("Constraints[29]", "Params.sketch11_width2")
sketch11.setExpression("Constraints[30]", "Params.sketch11_height")
sketch11.setExpression("Constraints[31]", "Params.sketch11_width3")
pad10 = body.newObject("PartDesign::Pad", "Pad009")
pad10.Profile = sketch11
pad10.setExpression("Length", "Params.pad10_length")
pad10.Reversed = True

sketch12 = body.newObject("Sketcher::SketchObject", "Sketch011")
sketch12.AttachmentSupport = (doc.getObject("XY_Plane"), [""])
sketch12.MapMode = "FlatFace"
sketch12.AttachmentOffset = App.Placement(V(0, 0, -1.4), App.Rotation())
add_polygon(sketch12, [(28.1, -18), (28.1, -21), (-26, -21), (-26, -18)])
sketch12.addConstraint([
    Sketcher.Constraint("Vertical", 0),
    Sketcher.Constraint("Horizontal", 1),
    Sketcher.Constraint("Vertical", 2),
    Sketcher.Constraint("Horizontal", 3),
    Sketcher.Constraint("DistanceY", 0, 2, 0, 1, Q("3 mm")),
    Sketcher.Constraint("DistanceX", 1, 2, 1, 1, Q("54.1 mm")),
    Sketcher.Constraint("DistanceX", -1, 1, 0, 2, Q("28.058193 mm")),
    Sketcher.Constraint("DistanceY", 0, 2, -1, 1, Q("21.031155 mm")),
])
sketch12.setExpression("Constraints[8]", "Params.sketch12_height")
sketch12.setExpression("Constraints[9]", "Params.sketch12_width")
pad11 = body.newObject("PartDesign::Pad", "Pad010")
pad11.Profile = sketch12
pad11.setExpression("Length", "Params.pad11_length")
pad11.Reversed = True

sketch13 = body.newObject("Sketcher::SketchObject", "Sketch012")
sketch13.AttachmentSupport = (doc.getObject("YZ_Plane"), [""])
sketch13.MapMode = "FlatFace"
sketch13.AttachmentOffset = App.Placement(V(0, 0, 55.258193), App.Rotation())
add_polygon(sketch13, [(25.1, -3.4), (-29.5, -3.4), (-29.5, -1.4), (25.1, -1.4)])
sketch13.addConstraint([
    Sketcher.Constraint("Horizontal", 0),
    Sketcher.Constraint("Vertical", 1),
    Sketcher.Constraint("Horizontal", 2),
    Sketcher.Constraint("Vertical", 3),
    Sketcher.Constraint("DistanceY", 1, 1, 1, 2, Q("2 mm")),
    Sketcher.Constraint("DistanceX", 0, 2, 0, 1, Q("54.6 mm")),
    Sketcher.Constraint("DistanceY", 0, 2, -1, 1, Q("3.4 mm")),
    Sketcher.Constraint("DistanceX", 0, 2, -1, 1, Q("29.531155 mm")),
])
sketch13.setExpression("Constraints[8]", "Params.sketch13_height")
sketch13.setExpression("Constraints[9]", "Params.sketch13_width")
pad12 = body.newObject("PartDesign::Pad", "Pad011")
pad12.Profile = sketch13
pad12.setExpression("Length", "Params.pad12_length")
pad12.Reversed = True

sketch14 = body.newObject("Sketcher::SketchObject", "Sketch013")
sketch14.AttachmentSupport = (doc.getObject("XY_Plane"), [""])
sketch14.MapMode = "FlatFace"
sketch14.AttachmentOffset = App.Placement(V(0, 0, -3.4), App.Rotation())
add_polygon(sketch14, [(54.3, 25.1), (54.3, -29.5), (50.8, -29.5), (50.8, 25.1)])
sketch14.addConstraint([
    Sketcher.Constraint("Vertical", 0),
    Sketcher.Constraint("Horizontal", 1),
    Sketcher.Constraint("Vertical", 2),
    Sketcher.Constraint("Horizontal", 3),
    Sketcher.Constraint("DistanceX", 1, 2, 1, 1, Q("3.5 mm")),
    Sketcher.Constraint("DistanceY", 0, 2, 0, 1, Q("54.6 mm")),
    Sketcher.Constraint("DistanceX", -1, 1, 0, 2, Q("54.258193 mm")),
    Sketcher.Constraint("DistanceY", 0, 2, -1, 1, Q("29.531155 mm")),
])
sketch14.setExpression("Constraints[8]", "Params.sketch14_width")
sketch14.setExpression("Constraints[9]", "Params.sketch14_height")
pad13 = body.newObject("PartDesign::Pad", "Pad012")
pad13.Profile = sketch14
pad13.setExpression("Length", "Params.pad13_length")
pad13.Reversed = True

sketch15 = body.newObject("Sketcher::SketchObject", "Sketch014")
sketch15.AttachmentSupport = (doc.getObject("XY_Plane"), [""])
sketch15.MapMode = "FlatFace"
sketch15.AttachmentOffset = App.Placement(V(0, 0, -1.4), App.Rotation())
sketch15.addGeometry([
    Part.Circle(V(41.1, -1.4, 0), V(0, 0, 1), 3.5),
    Part.Circle(V(25.6, -1.4, 0), V(0, 0, 1), 3.5),
    Part.Circle(V(10.1, -1.4, 0), V(0, 0, 1), 3.5),
    Part.Circle(V(-5.4, -1.4, 0), V(0, 0, 1), 3.5),
    Part.Circle(V(-20.9, -1.4, 0), V(0, 0, 1), 3.5),
], False)
sketch15.addConstraint([
    Sketcher.Constraint("Equal", 0, 1),
    Sketcher.Constraint("Equal", 1, 2),
    Sketcher.Constraint("Equal", 2, 3),
    Sketcher.Constraint("Equal", 3, 4),
    Sketcher.Constraint("Horizontal", 0, 3, 1, 3),
    Sketcher.Constraint("Horizontal", 1, 3, 2, 3),
    Sketcher.Constraint("Horizontal", 2, 3, 3, 3),
    Sketcher.Constraint("Horizontal", 3, 3, 4, 3),
    Sketcher.Constraint("Diameter", 0, Q("7 mm")),
    Sketcher.Constraint("DistanceX", 2, 3, 0, 3, Q("31 mm")),
    Sketcher.Constraint("DistanceX", 3, 3, 1, 3, Q("31 mm")),
    Sketcher.Constraint("DistanceX", 4, 3, 2, 3, Q("31 mm")),
    Sketcher.Constraint("DistanceX", 1, 3, 0, 3, Q("15.5 mm")),
    Sketcher.Constraint("DistanceX", -1, 1, 0, 3, Q("41.058193 mm")),
    Sketcher.Constraint("DistanceY", 0, 3, -1, 1, Q("1.431155 mm")),
])
sketch15.setExpression("Constraints[8]", "Params.sketch15_diameter")
pocket2 = body.newObject("PartDesign::Pocket", "Pocket001")
pocket2.Profile = sketch15
pocket2.setExpression("Length", "Params.pocket2_length")
pocket2.Reversed = True

sketch16 = body.newObject("Sketcher::SketchObject", "Sketch015")
sketch16.AttachmentSupport = (doc.getObject("XY_Plane"), [""])
sketch16.MapMode = "FlatFace"
sketch16.AttachmentOffset = App.Placement(V(0, 0, -1.4), App.Rotation())
add_polygon(sketch16, [(41, -8), (35, -5), (35, 2), (41, 5), (47, 2), (47, -5)])
add_polygon(sketch16, [(26, 5), (31, 2), (31, -5), (26, -8), (20, -5), (20, 2)])
add_polygon(sketch16, [(10, 5), (16, 2), (16, -5), (10, -8), (4, -5), (4, 2)])
add_polygon(sketch16, [(-5, 5), (0, 2), (0, -5), (-5, -8), (-11, -5), (-11, 2)])
add_polygon(sketch16, [(-21, 5), (-15, 2), (-15, -5), (-21, -8), (-27, -5), (-27, 2)])
sketch16.addConstraint([
    Sketcher.Constraint("Vertical", 1),
    Sketcher.Constraint("Vertical", 4),
    Sketcher.Constraint("Vertical", 7),
    Sketcher.Constraint("Vertical", 10),
    Sketcher.Constraint("Vertical", 13),
    Sketcher.Constraint("Vertical", 16),
    Sketcher.Constraint("Vertical", 19),
    Sketcher.Constraint("Vertical", 22),
    Sketcher.Constraint("Vertical", 25),
    Sketcher.Constraint("Vertical", 28),
    Sketcher.Constraint("Parallel", 0, 6),
    Sketcher.Constraint("Parallel", 5, 8),
    Sketcher.Constraint("Parallel", 6, 9),
    Sketcher.Constraint("Parallel", 8, 11),
    Sketcher.Constraint("Parallel", 9, 12),
    Sketcher.Constraint("Parallel", 11, 14),
    Sketcher.Constraint("Parallel", 12, 15),
    Sketcher.Constraint("Parallel", 14, 17),
    Sketcher.Constraint("Parallel", 15, 18),
    Sketcher.Constraint("Parallel", 17, 20),
    Sketcher.Constraint("Parallel", 18, 21),
    Sketcher.Constraint("Parallel", 20, 23),
    Sketcher.Constraint("Parallel", 21, 24),
    Sketcher.Constraint("Parallel", 23, 26),
    Sketcher.Constraint("Parallel", 24, 27),
    Sketcher.Constraint("Parallel", 26, 29),
    Sketcher.Constraint("Horizontal", 1, 2, 3, 2),
    Sketcher.Constraint("Horizontal", 0, 2, 4, 2),
    Sketcher.Constraint("Horizontal", 3, 2, 6, 2),
    Sketcher.Constraint("Horizontal", 4, 2, 7, 2),
    Sketcher.Constraint("Horizontal", 5, 2, 8, 2),
    Sketcher.Constraint("Horizontal", 7, 2, 9, 2),
    Sketcher.Constraint("Horizontal", 6, 2, 10, 2),
    Sketcher.Constraint("Horizontal", 10, 2, 12, 2),
    Sketcher.Constraint("Horizontal", 9, 2, 13, 2),
    Sketcher.Constraint("Horizontal", 8, 2, 14, 2),
    Sketcher.Constraint("Horizontal", 13, 2, 15, 2),
    Sketcher.Constraint("Horizontal", 12, 2, 16, 2),
    Sketcher.Constraint("Horizontal", 16, 2, 18, 2),
    Sketcher.Constraint("Horizontal", 15, 2, 19, 2),
    Sketcher.Constraint("Horizontal", 14, 2, 20, 2),
    Sketcher.Constraint("Horizontal", 19, 2, 21, 2),
    Sketcher.Constraint("Horizontal", 18, 2, 22, 2),
    Sketcher.Constraint("Horizontal", 22, 2, 24, 2),
    Sketcher.Constraint("Horizontal", 21, 2, 25, 2),
    Sketcher.Constraint("Horizontal", 20, 2, 26, 2),
    Sketcher.Constraint("Horizontal", 25, 2, 27, 2),
    Sketcher.Constraint("Horizontal", 24, 2, 28, 2),
    Sketcher.Constraint("Vertical", 2, 2, 5, 2),
    Sketcher.Constraint("Vertical", 8, 2, 11, 2),
    Sketcher.Constraint("Angle", 0, Q("150 deg")),
    Sketcher.Constraint("DistanceX", 6, 2, 1, 2, Q("4 mm")),
    Sketcher.Constraint("DistanceX", 12, 2, 10, 2, Q("4 mm")),
    Sketcher.Constraint("DistanceX", 18, 2, 16, 2, Q("4 mm")),
    Sketcher.Constraint("DistanceX", 24, 2, 22, 2, Q("4 mm")),
    Sketcher.Constraint("DistanceX", 1, 2, 3, 2, Q("11.5 mm")),
    Sketcher.Constraint("DistanceY", 1, 1, 1, 2, Q("6.639528 mm")),
    Sketcher.Constraint("Distance", 2, Q("6.696031 mm")),
    Sketcher.Constraint("DistanceY", 0, 2, -1, 1, Q("4.750919 mm")),
    Sketcher.Constraint("DistanceX", -1, 1, 0, 2, Q("35.308193 mm")),
])
pocket3 = body.newObject("PartDesign::Pocket", "Pocket002")
pocket3.Profile = sketch16
pocket3.setExpression("Length", "Params.pocket3_length")
pocket3.Reversed = True

doc.recompute()
